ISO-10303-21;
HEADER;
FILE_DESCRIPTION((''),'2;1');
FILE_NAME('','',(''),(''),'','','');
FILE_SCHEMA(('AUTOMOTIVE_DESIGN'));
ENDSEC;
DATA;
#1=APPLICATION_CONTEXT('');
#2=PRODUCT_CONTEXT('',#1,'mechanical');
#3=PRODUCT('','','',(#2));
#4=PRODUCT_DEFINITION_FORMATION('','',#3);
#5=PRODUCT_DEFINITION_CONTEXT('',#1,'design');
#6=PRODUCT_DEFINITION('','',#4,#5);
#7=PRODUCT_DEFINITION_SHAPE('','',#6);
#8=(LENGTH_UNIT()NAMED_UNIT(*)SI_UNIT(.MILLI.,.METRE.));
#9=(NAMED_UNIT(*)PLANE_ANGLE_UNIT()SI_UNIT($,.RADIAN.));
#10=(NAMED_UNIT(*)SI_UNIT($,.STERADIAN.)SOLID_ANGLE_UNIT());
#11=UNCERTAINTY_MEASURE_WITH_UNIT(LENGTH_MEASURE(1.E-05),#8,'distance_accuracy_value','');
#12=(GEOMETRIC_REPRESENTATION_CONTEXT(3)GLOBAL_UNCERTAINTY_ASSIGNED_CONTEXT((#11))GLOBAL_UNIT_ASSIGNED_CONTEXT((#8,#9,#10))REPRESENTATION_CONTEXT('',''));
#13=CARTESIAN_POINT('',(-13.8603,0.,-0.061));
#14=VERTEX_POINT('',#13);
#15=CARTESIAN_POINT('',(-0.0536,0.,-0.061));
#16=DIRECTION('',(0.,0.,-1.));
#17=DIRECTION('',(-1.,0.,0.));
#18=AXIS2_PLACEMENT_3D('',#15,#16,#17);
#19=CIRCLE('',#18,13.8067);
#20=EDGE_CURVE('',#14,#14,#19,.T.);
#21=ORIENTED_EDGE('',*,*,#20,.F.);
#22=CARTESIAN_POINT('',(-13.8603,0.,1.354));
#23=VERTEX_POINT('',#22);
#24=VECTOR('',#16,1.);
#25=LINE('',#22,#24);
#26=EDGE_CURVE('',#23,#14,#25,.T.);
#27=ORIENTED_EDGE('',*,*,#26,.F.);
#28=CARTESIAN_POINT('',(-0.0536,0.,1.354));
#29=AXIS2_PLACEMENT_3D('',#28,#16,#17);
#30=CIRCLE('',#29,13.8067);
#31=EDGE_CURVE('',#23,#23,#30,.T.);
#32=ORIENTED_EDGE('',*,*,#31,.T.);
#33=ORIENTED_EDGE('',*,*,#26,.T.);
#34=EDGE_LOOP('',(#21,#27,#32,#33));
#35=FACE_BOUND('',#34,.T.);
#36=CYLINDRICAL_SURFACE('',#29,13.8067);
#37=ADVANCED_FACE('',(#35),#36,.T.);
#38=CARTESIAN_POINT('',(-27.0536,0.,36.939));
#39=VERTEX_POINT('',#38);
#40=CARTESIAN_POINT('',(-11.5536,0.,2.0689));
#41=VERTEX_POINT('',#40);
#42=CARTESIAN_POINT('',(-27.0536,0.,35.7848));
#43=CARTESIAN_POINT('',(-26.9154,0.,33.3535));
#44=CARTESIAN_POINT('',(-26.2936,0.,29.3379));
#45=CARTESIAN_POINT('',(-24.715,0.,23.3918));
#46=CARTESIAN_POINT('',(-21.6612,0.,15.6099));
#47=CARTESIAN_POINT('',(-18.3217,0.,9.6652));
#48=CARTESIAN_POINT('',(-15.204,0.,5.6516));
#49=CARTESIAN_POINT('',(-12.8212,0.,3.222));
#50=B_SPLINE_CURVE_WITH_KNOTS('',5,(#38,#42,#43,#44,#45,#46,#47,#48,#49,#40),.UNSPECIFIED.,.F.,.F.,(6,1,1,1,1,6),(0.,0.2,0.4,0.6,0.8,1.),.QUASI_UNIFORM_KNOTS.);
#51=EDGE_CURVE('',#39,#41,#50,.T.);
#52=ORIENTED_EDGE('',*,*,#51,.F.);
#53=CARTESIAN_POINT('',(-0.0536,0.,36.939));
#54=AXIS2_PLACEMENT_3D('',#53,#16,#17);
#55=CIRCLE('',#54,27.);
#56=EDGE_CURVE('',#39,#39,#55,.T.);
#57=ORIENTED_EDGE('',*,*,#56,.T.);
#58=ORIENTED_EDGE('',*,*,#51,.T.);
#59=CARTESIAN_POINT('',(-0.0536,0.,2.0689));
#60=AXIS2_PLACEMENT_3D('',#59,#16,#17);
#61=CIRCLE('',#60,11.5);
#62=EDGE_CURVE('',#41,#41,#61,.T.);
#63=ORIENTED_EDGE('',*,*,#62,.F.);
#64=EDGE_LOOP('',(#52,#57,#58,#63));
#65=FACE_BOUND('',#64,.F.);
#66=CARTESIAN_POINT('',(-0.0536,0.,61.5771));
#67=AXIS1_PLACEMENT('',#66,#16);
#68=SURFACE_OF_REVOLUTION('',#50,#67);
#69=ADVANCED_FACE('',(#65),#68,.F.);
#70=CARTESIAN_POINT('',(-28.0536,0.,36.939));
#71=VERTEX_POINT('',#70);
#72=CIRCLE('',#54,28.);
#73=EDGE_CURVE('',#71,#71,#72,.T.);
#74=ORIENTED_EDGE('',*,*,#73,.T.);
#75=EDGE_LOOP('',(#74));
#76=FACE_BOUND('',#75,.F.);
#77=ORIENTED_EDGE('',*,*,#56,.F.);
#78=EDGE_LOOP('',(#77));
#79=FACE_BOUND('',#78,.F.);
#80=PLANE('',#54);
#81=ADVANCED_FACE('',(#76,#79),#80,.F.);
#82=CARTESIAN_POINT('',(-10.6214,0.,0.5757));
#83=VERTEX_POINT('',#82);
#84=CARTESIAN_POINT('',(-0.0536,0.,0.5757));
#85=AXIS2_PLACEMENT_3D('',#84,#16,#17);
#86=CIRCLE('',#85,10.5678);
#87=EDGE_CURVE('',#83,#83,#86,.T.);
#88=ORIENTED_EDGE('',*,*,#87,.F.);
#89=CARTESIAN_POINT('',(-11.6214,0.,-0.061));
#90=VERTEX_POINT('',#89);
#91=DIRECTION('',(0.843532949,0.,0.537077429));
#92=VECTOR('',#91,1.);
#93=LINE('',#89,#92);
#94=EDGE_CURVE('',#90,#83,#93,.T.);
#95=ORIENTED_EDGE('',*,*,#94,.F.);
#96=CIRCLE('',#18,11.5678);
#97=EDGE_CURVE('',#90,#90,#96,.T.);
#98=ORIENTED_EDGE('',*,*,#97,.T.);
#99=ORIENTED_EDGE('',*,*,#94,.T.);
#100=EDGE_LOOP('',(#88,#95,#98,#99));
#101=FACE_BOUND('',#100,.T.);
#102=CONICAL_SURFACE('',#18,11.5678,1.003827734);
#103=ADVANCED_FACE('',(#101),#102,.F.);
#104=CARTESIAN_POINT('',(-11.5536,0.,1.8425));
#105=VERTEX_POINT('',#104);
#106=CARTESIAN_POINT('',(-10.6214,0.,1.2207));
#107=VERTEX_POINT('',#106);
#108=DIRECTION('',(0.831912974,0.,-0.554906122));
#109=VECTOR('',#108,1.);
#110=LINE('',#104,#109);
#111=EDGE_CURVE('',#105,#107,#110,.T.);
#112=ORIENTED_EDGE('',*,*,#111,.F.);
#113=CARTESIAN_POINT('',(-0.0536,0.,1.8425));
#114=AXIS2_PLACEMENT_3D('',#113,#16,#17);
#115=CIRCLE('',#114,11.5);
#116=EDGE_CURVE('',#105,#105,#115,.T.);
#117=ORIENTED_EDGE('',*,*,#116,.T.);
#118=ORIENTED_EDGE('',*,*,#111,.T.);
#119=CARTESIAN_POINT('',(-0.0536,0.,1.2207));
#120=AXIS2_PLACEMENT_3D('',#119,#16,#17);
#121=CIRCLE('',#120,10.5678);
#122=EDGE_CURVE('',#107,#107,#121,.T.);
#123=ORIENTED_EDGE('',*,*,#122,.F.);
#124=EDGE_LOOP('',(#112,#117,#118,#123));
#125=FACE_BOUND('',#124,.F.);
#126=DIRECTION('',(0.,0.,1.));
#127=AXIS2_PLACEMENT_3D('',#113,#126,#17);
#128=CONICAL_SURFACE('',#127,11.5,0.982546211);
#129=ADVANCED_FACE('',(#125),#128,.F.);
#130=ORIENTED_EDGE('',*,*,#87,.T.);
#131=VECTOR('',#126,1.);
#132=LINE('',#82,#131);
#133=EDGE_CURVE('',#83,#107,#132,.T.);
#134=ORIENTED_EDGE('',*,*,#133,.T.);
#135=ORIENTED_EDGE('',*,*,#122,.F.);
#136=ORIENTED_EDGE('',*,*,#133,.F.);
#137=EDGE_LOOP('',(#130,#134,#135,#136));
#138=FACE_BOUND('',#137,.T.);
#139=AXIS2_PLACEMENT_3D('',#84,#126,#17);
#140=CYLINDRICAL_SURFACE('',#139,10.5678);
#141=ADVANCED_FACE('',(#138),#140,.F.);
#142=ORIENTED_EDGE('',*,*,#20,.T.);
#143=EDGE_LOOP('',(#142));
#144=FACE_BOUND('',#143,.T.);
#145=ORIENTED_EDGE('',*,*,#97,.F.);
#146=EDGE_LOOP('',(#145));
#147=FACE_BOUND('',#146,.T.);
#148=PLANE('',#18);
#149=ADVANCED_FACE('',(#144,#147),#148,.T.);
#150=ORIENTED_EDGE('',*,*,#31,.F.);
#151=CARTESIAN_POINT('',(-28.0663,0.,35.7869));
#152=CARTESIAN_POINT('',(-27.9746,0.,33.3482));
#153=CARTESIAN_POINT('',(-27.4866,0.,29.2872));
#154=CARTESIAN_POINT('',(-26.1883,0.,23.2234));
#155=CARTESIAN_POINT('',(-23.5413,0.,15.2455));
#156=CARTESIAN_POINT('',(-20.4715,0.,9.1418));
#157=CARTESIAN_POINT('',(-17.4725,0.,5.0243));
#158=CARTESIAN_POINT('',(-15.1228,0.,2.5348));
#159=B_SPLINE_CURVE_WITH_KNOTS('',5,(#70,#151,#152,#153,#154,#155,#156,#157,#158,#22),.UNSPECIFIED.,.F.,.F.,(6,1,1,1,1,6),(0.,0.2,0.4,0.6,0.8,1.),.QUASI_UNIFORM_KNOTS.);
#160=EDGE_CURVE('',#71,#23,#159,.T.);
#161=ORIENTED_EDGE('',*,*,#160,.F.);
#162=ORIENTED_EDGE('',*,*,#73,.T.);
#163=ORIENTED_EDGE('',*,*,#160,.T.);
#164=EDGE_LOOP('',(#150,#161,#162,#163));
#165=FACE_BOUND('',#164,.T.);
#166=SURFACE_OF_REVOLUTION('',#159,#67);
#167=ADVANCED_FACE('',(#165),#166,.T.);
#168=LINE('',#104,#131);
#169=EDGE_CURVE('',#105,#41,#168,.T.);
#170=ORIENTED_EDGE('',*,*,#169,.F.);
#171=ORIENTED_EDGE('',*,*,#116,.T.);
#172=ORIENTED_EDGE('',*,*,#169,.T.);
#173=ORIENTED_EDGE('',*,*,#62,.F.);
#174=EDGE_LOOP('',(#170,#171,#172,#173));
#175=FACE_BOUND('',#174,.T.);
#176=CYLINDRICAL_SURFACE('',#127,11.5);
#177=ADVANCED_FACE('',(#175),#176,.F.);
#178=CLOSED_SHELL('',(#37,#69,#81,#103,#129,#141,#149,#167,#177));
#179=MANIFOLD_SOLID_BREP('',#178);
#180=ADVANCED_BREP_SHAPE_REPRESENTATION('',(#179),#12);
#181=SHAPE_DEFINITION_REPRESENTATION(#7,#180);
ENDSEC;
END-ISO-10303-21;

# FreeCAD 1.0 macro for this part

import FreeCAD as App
import Part
import Sketcher

V = App.Vector

doc = App.newDocument("Part")
params = doc.addObject("Spreadsheet::Sheet", "Params")
for row, (alias, value) in enumerate([
    ("sketch1_height", "37 mm"),
    ("revolution_angle", "360 deg"),
], start=1):
    params.set(f"A{row}", alias)
    params.set(f"B{row}", "=" + value)
    params.setAlias(f"B{row}", alias)

body = doc.addObject("PartDesign::Body", "Body")

sketch1 = body.newObject("Sketcher::SketchObject", "Sketch")
sketch1.AttachmentSupport = (doc.getObject("XZ_Plane"), [""])
sketch1.MapMode = "FlatFace"
sketch1.addGeometry([
    Part.BSplineCurve([V(-28.0536, 36.939, 0), V(-28.0663, 35.7869, 0), V(-27.9746, 33.3482, 0), V(-27.4866, 29.2872, 0), V(-26.1883, 23.2234, 0), V(-23.5413, 15.2455, 0), V(-20.4715, 9.1418, 0), V(-17.4725, 5.0243, 0), V(-15.1228, 2.5348, 0), V(-13.8603, 1.354, 0)], [6, 1, 1, 1, 1, 6], [0, 0.2, 0.4, 0.6, 0.8, 1], False, 5, [1, 1, 1, 1, 1, 1, 1, 1, 1, 1], False),
    Part.LineSegment(V(-28.0536, 36.939, 0), V(-27.0536, 36.939, 0)),
    Part.BSplineCurve([V(-27.0536, 36.939, 0), V(-27.0536, 35.7848, 0), V(-26.9154, 33.3535, 0), V(-26.2936, 29.3379, 0), V(-24.715, 23.3918, 0), V(-21.6612, 15.6099, 0), V(-18.3217, 9.6652, 0), V(-15.204, 5.6516, 0), V(-12.8212, 3.222, 0), V(-11.5536, 2.0689, 0)], [6, 1, 1, 1, 1, 6], [0, 0.2, 0.4, 0.6, 0.8, 1], False, 5, [1, 1, 1, 1, 1, 1, 1, 1, 1, 1], False),
    Part.LineSegment(V(-11.5536, 2.0689, 0), V(-11.5536, 1.8425, 0)),
    Part.LineSegment(V(-11.5536, 1.8425, 0), V(-10.6214, 1.2207, 0)),
    Part.LineSegment(V(-10.6214, 1.2207, 0), V(-10.6214, 0.5757, 0)),
    Part.LineSegment(V(-10.6214, 0.5757, 0), V(-11.6214, -0.061, 0)),
    Part.LineSegment(V(-11.6214, -0.061, 0), V(-13.8603, -0.061, 0)),
    Part.LineSegment(V(-13.8603, -0.061, 0), V(-13.8603, 1.354, 0)),
], False)
sketch1.addGeometry(Part.LineSegment(V(-0.0536, 36.939, 0), V(-0.0536, -0.061, 0)), True)
sketch1.addConstraint([
    Sketcher.Constraint("Block", 0),
    Sketcher.Constraint("Block", 2),
    Sketcher.Constraint("Coincident", 0, 1, 1, 1),
    Sketcher.Constraint("Coincident", 1, 2, 2, 1),
    Sketcher.Constraint("Coincident", 2, 2, 3, 1),
    Sketcher.Constraint("Coincident", 3, 2, 4, 1),
    Sketcher.Constraint("Coincident", 4, 2, 5, 1),
    Sketcher.Constraint("Coincident", 5, 2, 6, 1),
    Sketcher.Constraint("Coincident", 6, 2, 7, 1),
    Sketcher.Constraint("Coincident", 7, 2, 8, 1),
    Sketcher.Constraint("Coincident", 8, 2, 0, 2),
    Sketcher.Constraint("Vertical", 3),
    Sketcher.Constraint("Vertical", 5),
    Sketcher.Constraint("Horizontal", 7),
    Sketcher.Constraint("Vertical", 8),
    Sketcher.Constraint("Vertical", 9),
    Sketcher.Constraint("Horizontal", 1, 2, 9, 1),
    Sketcher.Constraint("Horizontal", 7, 2, 9, 2),
    Sketcher.Constraint("DistanceY", 9, 2, 9, 1, 37.0),
    Sketcher.Constraint("DistanceX", 6, 2, 5, 2, 1.0),
    Sketcher.Constraint("DistanceX", 1, 2, 9, 1, 27.0),
    Sketcher.Constraint("DistanceX", 7, 2, 5, 2, 3.239),
    Sketcher.Constraint("DistanceY", 5, 2, 5, 1, 0.645),
    Sketcher.Constraint("DistanceY", 3, 2, 3, 1, 0.2264),
    Sketcher.Constraint("Distance", 4, 1.1205),
])
sketch1.setExpression("Constraints[18]", "Params.sketch1_height")
revolution = body.newObject("PartDesign::Revolution", "Revolution")
revolution.Profile = sketch1
revolution.ReferenceAxis = (sketch1, ["Axis0"])
revolution.setExpression("Angle", "Params.revolution_angle")

doc.recompute()
